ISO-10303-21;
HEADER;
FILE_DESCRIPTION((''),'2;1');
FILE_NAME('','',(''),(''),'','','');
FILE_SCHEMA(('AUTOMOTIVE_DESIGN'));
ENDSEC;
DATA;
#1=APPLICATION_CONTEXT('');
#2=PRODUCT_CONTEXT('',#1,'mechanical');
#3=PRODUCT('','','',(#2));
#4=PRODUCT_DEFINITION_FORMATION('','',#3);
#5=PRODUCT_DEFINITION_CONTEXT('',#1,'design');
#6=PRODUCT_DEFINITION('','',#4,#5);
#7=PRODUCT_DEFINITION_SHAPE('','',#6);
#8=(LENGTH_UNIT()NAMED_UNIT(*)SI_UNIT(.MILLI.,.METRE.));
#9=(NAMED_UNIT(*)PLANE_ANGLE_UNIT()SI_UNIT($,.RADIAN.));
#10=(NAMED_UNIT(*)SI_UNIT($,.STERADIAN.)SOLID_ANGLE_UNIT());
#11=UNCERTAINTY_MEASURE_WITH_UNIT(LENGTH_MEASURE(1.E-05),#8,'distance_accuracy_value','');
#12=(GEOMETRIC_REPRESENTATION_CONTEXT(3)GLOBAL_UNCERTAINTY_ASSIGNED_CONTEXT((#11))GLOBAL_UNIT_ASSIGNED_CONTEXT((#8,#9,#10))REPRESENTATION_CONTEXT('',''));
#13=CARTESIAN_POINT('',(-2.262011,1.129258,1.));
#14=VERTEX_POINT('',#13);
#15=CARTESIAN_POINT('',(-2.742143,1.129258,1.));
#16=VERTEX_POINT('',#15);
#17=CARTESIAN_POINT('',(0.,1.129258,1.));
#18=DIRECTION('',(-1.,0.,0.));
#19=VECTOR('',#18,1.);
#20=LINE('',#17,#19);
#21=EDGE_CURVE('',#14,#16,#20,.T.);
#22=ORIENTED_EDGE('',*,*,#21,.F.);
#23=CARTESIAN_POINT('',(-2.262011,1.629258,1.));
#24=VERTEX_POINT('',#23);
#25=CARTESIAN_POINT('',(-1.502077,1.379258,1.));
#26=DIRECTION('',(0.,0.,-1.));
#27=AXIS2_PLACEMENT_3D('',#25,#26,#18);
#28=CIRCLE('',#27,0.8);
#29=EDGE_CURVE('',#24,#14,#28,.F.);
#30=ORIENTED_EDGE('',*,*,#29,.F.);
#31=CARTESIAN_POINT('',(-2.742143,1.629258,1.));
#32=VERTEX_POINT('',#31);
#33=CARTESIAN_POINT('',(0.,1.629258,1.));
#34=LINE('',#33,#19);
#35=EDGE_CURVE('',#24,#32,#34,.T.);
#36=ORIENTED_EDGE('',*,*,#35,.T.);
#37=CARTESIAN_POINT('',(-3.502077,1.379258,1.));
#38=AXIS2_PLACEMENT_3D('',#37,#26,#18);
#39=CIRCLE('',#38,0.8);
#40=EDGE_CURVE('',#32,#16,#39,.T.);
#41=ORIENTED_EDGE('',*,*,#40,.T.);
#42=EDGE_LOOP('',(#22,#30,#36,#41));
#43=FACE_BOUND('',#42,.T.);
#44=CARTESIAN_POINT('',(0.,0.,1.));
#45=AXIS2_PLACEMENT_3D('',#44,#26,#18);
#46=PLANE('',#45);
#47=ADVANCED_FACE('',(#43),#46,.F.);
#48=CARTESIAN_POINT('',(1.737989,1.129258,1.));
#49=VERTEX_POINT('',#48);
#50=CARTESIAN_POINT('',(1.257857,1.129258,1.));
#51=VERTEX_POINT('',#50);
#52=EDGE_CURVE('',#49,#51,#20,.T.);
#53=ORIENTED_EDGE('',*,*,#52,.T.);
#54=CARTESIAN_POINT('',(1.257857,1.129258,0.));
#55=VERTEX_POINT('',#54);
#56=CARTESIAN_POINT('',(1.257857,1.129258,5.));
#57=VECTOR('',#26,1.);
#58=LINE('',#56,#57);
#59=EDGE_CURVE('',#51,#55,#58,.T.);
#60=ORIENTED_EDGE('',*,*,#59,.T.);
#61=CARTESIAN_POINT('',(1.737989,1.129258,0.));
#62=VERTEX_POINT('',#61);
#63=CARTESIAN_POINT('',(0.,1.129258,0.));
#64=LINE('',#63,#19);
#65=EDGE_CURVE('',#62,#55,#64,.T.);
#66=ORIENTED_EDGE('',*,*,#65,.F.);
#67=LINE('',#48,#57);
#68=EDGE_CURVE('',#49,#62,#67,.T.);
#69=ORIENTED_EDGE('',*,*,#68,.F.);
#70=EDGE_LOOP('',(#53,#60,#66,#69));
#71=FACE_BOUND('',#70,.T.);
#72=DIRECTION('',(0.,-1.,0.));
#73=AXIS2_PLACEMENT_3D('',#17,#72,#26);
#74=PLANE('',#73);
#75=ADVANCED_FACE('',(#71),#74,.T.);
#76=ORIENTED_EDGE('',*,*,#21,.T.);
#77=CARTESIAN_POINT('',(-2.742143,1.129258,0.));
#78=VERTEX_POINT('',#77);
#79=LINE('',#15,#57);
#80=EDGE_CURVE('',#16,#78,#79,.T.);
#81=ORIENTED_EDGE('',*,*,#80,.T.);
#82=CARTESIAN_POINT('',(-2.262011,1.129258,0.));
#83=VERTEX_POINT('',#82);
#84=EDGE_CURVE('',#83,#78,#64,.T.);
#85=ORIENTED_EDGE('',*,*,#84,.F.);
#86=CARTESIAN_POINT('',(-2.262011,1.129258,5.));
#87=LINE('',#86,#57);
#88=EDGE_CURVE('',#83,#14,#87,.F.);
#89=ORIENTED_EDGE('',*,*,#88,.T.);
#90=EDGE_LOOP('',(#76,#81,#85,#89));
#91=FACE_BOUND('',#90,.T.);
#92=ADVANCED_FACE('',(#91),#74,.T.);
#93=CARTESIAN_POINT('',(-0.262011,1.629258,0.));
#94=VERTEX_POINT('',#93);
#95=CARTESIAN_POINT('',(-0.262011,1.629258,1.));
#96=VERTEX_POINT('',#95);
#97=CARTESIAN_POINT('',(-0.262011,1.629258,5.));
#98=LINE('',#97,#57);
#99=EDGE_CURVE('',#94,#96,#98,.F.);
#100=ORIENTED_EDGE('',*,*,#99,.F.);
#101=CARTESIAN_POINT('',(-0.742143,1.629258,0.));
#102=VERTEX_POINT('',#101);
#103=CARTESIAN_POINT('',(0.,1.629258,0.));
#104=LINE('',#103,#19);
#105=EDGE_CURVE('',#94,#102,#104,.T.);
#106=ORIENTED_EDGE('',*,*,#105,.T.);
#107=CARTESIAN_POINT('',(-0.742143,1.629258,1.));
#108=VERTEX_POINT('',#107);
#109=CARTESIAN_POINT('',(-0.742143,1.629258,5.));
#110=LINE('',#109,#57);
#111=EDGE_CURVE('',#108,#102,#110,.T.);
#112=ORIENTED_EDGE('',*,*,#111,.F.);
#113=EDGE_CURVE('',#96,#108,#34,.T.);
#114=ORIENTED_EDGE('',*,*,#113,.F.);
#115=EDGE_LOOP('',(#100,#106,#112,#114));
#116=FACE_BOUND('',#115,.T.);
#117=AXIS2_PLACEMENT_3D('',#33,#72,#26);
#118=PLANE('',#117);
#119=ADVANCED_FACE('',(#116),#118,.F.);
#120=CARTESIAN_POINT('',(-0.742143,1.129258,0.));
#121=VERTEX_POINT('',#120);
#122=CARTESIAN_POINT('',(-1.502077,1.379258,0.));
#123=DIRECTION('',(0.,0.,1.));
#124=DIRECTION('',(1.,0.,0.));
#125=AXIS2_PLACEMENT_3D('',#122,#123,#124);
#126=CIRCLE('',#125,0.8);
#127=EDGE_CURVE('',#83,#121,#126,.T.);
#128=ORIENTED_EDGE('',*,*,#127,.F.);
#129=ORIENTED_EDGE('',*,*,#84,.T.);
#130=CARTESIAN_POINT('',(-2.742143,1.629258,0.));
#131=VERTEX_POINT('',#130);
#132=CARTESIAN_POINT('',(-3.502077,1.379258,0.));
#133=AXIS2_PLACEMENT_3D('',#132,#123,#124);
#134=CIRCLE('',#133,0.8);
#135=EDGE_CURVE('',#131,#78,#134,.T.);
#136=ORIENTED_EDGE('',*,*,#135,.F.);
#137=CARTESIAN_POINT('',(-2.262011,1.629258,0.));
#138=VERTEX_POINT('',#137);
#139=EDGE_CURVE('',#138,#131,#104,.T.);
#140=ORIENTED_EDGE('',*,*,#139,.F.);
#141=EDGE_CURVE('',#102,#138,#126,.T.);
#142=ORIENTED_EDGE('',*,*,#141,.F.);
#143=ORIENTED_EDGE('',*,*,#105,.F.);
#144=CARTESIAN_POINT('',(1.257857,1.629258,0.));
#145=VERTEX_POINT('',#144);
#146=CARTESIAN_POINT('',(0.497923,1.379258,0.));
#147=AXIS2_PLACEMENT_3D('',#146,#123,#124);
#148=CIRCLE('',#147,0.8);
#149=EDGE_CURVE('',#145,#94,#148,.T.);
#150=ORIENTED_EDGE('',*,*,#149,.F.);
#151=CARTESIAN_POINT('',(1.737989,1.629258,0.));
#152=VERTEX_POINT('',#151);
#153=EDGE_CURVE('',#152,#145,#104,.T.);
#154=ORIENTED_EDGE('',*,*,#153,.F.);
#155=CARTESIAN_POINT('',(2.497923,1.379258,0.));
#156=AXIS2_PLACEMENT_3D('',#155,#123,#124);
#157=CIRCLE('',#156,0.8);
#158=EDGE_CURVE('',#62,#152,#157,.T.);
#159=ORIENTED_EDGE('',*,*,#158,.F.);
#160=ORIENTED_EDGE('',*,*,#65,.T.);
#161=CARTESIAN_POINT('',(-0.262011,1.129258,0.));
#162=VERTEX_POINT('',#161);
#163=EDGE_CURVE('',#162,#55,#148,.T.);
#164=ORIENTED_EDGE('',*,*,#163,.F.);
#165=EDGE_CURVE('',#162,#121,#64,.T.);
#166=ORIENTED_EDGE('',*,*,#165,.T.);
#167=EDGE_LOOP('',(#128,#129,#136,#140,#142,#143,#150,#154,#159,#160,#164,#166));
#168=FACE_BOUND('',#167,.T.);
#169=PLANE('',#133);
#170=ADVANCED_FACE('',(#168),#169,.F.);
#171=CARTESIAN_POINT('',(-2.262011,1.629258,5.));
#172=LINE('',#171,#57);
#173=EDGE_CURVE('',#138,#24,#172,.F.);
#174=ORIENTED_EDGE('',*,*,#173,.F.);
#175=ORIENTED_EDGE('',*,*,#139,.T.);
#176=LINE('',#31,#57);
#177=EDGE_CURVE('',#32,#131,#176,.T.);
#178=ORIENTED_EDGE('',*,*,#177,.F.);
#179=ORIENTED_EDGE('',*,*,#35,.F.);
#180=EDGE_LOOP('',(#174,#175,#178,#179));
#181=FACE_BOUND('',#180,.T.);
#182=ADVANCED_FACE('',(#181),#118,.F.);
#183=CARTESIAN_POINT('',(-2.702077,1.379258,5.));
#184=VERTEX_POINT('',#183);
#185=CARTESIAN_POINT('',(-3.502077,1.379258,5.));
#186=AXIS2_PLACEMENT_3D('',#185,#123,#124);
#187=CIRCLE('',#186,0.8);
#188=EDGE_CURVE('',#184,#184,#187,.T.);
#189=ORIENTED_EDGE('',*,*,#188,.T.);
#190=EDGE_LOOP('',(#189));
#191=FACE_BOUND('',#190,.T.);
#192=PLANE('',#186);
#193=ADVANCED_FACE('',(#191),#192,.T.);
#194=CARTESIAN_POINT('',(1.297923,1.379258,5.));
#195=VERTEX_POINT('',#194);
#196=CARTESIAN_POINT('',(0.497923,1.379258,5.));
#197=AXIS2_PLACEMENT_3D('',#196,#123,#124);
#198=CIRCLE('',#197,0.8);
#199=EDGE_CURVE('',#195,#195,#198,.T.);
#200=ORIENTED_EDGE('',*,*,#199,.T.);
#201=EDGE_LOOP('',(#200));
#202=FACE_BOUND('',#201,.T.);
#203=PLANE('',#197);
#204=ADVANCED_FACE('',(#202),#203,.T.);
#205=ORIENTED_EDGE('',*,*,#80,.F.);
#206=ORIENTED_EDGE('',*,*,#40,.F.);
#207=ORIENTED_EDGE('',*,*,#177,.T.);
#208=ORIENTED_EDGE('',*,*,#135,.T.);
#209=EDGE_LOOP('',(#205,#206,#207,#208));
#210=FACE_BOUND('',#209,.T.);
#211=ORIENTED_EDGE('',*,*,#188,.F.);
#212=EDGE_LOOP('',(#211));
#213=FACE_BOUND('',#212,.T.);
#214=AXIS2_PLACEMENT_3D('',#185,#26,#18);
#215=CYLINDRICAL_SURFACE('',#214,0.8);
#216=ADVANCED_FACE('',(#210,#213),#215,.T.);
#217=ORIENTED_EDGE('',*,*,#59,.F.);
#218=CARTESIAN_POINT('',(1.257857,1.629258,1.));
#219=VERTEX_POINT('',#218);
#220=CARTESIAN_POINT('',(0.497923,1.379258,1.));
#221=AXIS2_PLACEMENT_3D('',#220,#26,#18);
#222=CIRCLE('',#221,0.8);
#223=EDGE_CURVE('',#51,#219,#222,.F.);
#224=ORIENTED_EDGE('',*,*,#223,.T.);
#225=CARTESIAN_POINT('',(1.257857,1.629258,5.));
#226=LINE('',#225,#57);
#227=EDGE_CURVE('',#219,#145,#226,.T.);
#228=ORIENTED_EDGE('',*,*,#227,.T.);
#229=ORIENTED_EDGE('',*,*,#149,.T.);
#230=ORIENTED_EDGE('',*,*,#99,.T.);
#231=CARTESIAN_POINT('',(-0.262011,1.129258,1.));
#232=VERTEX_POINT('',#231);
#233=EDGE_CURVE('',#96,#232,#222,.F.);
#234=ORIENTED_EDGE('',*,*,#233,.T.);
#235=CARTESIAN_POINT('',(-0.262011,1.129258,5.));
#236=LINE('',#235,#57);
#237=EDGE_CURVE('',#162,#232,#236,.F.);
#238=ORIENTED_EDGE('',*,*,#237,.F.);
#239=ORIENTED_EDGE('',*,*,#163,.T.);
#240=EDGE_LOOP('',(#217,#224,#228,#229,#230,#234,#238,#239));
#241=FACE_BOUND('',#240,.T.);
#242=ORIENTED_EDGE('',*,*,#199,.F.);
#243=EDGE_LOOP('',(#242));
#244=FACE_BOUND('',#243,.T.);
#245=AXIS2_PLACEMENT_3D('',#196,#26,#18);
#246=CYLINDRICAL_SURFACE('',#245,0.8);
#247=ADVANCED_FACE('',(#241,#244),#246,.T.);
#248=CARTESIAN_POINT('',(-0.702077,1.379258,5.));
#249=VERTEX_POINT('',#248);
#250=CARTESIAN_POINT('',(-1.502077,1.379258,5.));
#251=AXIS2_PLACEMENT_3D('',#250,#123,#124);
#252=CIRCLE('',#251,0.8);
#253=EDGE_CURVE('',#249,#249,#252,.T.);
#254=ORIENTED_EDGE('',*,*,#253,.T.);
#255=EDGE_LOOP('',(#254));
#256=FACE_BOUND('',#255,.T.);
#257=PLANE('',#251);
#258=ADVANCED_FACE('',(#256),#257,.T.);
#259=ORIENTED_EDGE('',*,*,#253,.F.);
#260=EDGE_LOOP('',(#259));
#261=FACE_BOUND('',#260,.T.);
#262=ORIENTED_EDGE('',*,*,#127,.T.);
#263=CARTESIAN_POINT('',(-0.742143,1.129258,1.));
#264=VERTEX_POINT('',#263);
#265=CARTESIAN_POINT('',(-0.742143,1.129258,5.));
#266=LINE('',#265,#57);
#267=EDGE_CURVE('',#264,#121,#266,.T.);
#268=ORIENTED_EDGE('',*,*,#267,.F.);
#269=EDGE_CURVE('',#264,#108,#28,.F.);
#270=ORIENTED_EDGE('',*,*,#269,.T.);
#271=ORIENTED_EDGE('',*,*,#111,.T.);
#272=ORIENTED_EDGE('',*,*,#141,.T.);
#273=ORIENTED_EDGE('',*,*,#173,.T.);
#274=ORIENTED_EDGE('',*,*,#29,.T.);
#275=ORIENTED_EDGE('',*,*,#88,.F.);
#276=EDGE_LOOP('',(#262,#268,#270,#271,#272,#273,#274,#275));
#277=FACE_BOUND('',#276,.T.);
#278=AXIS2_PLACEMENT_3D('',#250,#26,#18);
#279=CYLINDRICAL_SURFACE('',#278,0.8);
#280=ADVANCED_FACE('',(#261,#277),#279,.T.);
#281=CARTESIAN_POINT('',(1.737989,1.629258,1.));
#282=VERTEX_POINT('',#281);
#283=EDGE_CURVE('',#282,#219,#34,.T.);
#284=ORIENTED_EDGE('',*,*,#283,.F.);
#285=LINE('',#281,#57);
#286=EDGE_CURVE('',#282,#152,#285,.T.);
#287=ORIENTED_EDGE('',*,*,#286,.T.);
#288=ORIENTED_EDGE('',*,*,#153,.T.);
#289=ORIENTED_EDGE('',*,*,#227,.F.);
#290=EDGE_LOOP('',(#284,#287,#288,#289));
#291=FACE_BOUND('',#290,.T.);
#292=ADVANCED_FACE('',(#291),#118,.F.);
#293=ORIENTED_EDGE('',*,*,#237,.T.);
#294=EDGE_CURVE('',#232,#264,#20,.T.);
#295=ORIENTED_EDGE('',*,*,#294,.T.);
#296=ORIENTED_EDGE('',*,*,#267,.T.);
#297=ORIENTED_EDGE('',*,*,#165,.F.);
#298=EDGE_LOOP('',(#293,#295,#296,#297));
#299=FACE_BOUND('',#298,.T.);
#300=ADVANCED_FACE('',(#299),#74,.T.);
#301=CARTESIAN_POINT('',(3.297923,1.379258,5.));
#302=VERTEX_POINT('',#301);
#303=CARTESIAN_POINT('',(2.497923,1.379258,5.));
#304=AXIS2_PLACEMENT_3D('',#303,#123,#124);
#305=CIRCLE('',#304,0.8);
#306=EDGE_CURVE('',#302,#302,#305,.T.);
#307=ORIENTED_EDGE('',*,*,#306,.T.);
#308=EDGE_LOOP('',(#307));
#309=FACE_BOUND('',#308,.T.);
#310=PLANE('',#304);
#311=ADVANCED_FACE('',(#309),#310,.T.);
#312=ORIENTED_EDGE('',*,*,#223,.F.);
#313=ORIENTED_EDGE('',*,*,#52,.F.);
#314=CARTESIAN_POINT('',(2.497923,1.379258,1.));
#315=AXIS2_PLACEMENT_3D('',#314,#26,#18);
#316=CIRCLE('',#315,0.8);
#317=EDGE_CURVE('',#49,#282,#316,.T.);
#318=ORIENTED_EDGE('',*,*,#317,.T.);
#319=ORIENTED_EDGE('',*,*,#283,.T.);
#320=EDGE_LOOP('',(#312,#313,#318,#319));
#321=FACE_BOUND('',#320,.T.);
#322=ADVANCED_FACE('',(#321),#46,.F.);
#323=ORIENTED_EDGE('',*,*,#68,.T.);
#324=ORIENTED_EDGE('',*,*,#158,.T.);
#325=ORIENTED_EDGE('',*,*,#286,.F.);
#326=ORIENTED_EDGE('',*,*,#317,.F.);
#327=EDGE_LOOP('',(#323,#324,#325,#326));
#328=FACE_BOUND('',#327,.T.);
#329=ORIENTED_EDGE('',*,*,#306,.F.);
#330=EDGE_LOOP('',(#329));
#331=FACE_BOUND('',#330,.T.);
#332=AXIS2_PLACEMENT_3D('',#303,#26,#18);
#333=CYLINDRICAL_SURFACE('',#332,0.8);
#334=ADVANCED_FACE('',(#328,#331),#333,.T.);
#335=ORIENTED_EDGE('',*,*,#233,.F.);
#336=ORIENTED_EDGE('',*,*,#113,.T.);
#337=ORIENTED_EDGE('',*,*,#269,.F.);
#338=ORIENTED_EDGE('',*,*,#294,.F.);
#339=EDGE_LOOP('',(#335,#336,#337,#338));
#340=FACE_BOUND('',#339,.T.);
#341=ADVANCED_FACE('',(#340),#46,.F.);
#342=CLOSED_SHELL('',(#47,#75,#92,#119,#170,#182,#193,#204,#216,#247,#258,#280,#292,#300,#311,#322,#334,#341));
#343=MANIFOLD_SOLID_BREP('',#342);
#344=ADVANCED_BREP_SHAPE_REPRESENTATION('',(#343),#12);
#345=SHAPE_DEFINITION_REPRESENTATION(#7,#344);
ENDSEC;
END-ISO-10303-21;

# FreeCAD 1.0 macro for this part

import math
import FreeCAD as App
import Part
import Sketcher
Q = App.Units.Quantity

doc = App.newDocument("Part")
body = doc.addObject("PartDesign::Body", "Body")

# Sketch on XY plane
sketch1 = body.newObject("Sketcher::SketchObject", "Sketch")
sketch1.AttachmentSupport = (doc.getObject("XY_Plane"), [""])
sketch1.MapMode = "FlatFace"
sketch1.addGeometry(Part.Circle(App.Vector(-3.5, 1.4, 0), App.Vector(0, 0, 1), 0.8), False)
sketch1.addConstraint(Sketcher.Constraint("Diameter", 0, Q("1.6 mm")))
sketch1.addConstraint(Sketcher.Constraint("DistanceX", 0, 3, -1, 1, Q("3.502077 mm")))
sketch1.addConstraint(Sketcher.Constraint("DistanceY", -1, 1, 0, 3, Q("1.379258 mm")))
pad1 = body.newObject("PartDesign::Pad", "Pad")
pad1.Profile = sketch1
pad1.Length = 5
body2 = doc.addObject("PartDesign::Body", "Body001")

# Sketch on XY plane
sketch2 = body2.newObject("Sketcher::SketchObject", "Sketch001")
sketch2.AttachmentSupport = (doc.getObject("XY_Plane001"), [""])
sketch2.MapMode = "FlatFace"
sketch2.addGeometry(Part.Circle(App.Vector(-1.5, 1.4, 0), App.Vector(0, 0, 1), 0.8), False)
sketch2.addConstraint(Sketcher.Constraint("Diameter", 0, Q("1.6 mm")))
sketch2.addConstraint(Sketcher.Constraint("DistanceX", 0, 3, -1, 1, Q("1.502077 mm")))
sketch2.addConstraint(Sketcher.Constraint("DistanceY", -1, 1, 0, 3, Q("1.379258 mm")))
pad2 = body2.newObject("PartDesign::Pad", "Pad001")
pad2.Profile = sketch2
pad2.Length = 5
body3 = doc.addObject("PartDesign::Body", "Body002")

# Sketch on XY plane
sketch3 = body3.newObject("Sketcher::SketchObject", "Sketch002")
sketch3.AttachmentSupport = (doc.getObject("XY_Plane002"), [""])
sketch3.MapMode = "FlatFace"
sketch3.addGeometry(Part.Circle(App.Vector(0.5, 1.4, 0), App.Vector(0, 0, 1), 0.8), False)
sketch3.addConstraint(Sketcher.Constraint("Diameter", 0, Q("1.6 mm")))
sketch3.addConstraint(Sketcher.Constraint("DistanceX", -1, 1, 0, 3, Q("0.497923 mm")))
sketch3.addConstraint(Sketcher.Constraint("DistanceY", -1, 1, 0, 3, Q("1.379258 mm")))
pad3 = body3.newObject("PartDesign::Pad", "Pad002")
pad3.Profile = sketch3
pad3.Length = 5
body4 = doc.addObject("PartDesign::Body", "Body003")

# Sketch on XY plane
sketch4 = body4.newObject("Sketcher::SketchObject", "Sketch003")
sketch4.AttachmentSupport = (doc.getObject("XY_Plane003"), [""])
sketch4.MapMode = "FlatFace"
sketch4.addGeometry(Part.Circle(App.Vector(2.5, 1.4, 0), App.Vector(0, 0, 1), 0.8), False)
sketch4.addConstraint(Sketcher.Constraint("Diameter", 0, Q("1.6 mm")))
sketch4.addConstraint(Sketcher.Constraint("DistanceX", -1, 1, 0, 3, Q("2.497923 mm")))
sketch4.addConstraint(Sketcher.Constraint("DistanceY", -1, 1, 0, 3, Q("1.379258 mm")))
pad4 = body4.newObject("PartDesign::Pad", "Pad003")
pad4.Profile = sketch4
pad4.Length = 5
body.AllowCompound = True
doc.recompute()

boolean = body.newObject("PartDesign::Boolean", "Boolean")
boolean.Type = "Fuse"
boolean.addObjects([body2])
doc.recompute()

boolean2 = body.newObject("PartDesign::Boolean", "Boolean001")
boolean2.Type = "Fuse"
boolean2.addObjects([body3])
doc.recompute()

boolean3 = body.newObject("PartDesign::Boolean", "Boolean002")
boolean3.Type = "Fuse"
boolean3.addObjects([body4])

# Sketch on XY plane
sketch5 = body.newObject("Sketcher::SketchObject", "Sketch004")
sketch5.AttachmentSupport = (doc.getObject("XY_Plane"), [""])
sketch5.MapMode = "FlatFace"
sketch5.addGeometry(Part.LineSegment(App.Vector(1.7, 1.1, 0), App.Vector(-2.7, 1.1, 0)), False)
sketch5.addGeometry(Part.ArcOfCircle(Part.Circle(App.Vector(-3.5, 1.4, 0), App.Vector(0, 0, 1), 0.8), math.radians(18), math.radians(342)), False)
sketch5.addGeometry(Part.LineSegment(App.Vector(-2.7, 1.6, 0), App.Vector(1.7, 1.6, 0)), False)
sketch5.addGeometry(Part.ArcOfCircle(Part.Circle(App.Vector(2.5, 1.4, 0), App.Vector(0, 0, 1), 0.8), math.radians(-162), math.radians(162)), False)
sketch5.addConstraint(Sketcher.Constraint("Coincident", 0, 2, 1, 2))
sketch5.addConstraint(Sketcher.Constraint("Coincident", 1, 1, 2, 1))
sketch5.addConstraint(Sketcher.Constraint("Coincident", 2, 2, 3, 2))
sketch5.addConstraint(Sketcher.Constraint("Coincident", 3, 1, 0, 1))
sketch5.addConstraint(Sketcher.Constraint("Horizontal", 0))
sketch5.addConstraint(Sketcher.Constraint("Horizontal", 2))
sketch5.addConstraint(Sketcher.Constraint("Equal", 1, 3))
sketch5.addConstraint(Sketcher.Constraint("Horizontal", 1, 3, 3, 3))
sketch5.addConstraint(Sketcher.Constraint("Vertical", 0, 2, 1, 1))
sketch5.addConstraint(Sketcher.Constraint("Radius", 1, Q("0.8 mm")))
sketch5.addConstraint(Sketcher.Constraint("DistanceX", 1, 3, 3, 3, Q("6 mm")))
sketch5.addConstraint(Sketcher.Constraint("DistanceY", 0, 2, 1, 1, Q("0.5 mm")))
sketch5.addConstraint(Sketcher.Constraint("DistanceX", -1, 1, 2, 2, Q("1.737989 mm")))
sketch5.addConstraint(Sketcher.Constraint("DistanceY", -1, 1, 1, 3, Q("1.379258 mm")))
pad5 = body.newObject("PartDesign::Pad", "Pad004")
pad5.Profile = sketch5
pad5.Length = 1

doc.recompute()
